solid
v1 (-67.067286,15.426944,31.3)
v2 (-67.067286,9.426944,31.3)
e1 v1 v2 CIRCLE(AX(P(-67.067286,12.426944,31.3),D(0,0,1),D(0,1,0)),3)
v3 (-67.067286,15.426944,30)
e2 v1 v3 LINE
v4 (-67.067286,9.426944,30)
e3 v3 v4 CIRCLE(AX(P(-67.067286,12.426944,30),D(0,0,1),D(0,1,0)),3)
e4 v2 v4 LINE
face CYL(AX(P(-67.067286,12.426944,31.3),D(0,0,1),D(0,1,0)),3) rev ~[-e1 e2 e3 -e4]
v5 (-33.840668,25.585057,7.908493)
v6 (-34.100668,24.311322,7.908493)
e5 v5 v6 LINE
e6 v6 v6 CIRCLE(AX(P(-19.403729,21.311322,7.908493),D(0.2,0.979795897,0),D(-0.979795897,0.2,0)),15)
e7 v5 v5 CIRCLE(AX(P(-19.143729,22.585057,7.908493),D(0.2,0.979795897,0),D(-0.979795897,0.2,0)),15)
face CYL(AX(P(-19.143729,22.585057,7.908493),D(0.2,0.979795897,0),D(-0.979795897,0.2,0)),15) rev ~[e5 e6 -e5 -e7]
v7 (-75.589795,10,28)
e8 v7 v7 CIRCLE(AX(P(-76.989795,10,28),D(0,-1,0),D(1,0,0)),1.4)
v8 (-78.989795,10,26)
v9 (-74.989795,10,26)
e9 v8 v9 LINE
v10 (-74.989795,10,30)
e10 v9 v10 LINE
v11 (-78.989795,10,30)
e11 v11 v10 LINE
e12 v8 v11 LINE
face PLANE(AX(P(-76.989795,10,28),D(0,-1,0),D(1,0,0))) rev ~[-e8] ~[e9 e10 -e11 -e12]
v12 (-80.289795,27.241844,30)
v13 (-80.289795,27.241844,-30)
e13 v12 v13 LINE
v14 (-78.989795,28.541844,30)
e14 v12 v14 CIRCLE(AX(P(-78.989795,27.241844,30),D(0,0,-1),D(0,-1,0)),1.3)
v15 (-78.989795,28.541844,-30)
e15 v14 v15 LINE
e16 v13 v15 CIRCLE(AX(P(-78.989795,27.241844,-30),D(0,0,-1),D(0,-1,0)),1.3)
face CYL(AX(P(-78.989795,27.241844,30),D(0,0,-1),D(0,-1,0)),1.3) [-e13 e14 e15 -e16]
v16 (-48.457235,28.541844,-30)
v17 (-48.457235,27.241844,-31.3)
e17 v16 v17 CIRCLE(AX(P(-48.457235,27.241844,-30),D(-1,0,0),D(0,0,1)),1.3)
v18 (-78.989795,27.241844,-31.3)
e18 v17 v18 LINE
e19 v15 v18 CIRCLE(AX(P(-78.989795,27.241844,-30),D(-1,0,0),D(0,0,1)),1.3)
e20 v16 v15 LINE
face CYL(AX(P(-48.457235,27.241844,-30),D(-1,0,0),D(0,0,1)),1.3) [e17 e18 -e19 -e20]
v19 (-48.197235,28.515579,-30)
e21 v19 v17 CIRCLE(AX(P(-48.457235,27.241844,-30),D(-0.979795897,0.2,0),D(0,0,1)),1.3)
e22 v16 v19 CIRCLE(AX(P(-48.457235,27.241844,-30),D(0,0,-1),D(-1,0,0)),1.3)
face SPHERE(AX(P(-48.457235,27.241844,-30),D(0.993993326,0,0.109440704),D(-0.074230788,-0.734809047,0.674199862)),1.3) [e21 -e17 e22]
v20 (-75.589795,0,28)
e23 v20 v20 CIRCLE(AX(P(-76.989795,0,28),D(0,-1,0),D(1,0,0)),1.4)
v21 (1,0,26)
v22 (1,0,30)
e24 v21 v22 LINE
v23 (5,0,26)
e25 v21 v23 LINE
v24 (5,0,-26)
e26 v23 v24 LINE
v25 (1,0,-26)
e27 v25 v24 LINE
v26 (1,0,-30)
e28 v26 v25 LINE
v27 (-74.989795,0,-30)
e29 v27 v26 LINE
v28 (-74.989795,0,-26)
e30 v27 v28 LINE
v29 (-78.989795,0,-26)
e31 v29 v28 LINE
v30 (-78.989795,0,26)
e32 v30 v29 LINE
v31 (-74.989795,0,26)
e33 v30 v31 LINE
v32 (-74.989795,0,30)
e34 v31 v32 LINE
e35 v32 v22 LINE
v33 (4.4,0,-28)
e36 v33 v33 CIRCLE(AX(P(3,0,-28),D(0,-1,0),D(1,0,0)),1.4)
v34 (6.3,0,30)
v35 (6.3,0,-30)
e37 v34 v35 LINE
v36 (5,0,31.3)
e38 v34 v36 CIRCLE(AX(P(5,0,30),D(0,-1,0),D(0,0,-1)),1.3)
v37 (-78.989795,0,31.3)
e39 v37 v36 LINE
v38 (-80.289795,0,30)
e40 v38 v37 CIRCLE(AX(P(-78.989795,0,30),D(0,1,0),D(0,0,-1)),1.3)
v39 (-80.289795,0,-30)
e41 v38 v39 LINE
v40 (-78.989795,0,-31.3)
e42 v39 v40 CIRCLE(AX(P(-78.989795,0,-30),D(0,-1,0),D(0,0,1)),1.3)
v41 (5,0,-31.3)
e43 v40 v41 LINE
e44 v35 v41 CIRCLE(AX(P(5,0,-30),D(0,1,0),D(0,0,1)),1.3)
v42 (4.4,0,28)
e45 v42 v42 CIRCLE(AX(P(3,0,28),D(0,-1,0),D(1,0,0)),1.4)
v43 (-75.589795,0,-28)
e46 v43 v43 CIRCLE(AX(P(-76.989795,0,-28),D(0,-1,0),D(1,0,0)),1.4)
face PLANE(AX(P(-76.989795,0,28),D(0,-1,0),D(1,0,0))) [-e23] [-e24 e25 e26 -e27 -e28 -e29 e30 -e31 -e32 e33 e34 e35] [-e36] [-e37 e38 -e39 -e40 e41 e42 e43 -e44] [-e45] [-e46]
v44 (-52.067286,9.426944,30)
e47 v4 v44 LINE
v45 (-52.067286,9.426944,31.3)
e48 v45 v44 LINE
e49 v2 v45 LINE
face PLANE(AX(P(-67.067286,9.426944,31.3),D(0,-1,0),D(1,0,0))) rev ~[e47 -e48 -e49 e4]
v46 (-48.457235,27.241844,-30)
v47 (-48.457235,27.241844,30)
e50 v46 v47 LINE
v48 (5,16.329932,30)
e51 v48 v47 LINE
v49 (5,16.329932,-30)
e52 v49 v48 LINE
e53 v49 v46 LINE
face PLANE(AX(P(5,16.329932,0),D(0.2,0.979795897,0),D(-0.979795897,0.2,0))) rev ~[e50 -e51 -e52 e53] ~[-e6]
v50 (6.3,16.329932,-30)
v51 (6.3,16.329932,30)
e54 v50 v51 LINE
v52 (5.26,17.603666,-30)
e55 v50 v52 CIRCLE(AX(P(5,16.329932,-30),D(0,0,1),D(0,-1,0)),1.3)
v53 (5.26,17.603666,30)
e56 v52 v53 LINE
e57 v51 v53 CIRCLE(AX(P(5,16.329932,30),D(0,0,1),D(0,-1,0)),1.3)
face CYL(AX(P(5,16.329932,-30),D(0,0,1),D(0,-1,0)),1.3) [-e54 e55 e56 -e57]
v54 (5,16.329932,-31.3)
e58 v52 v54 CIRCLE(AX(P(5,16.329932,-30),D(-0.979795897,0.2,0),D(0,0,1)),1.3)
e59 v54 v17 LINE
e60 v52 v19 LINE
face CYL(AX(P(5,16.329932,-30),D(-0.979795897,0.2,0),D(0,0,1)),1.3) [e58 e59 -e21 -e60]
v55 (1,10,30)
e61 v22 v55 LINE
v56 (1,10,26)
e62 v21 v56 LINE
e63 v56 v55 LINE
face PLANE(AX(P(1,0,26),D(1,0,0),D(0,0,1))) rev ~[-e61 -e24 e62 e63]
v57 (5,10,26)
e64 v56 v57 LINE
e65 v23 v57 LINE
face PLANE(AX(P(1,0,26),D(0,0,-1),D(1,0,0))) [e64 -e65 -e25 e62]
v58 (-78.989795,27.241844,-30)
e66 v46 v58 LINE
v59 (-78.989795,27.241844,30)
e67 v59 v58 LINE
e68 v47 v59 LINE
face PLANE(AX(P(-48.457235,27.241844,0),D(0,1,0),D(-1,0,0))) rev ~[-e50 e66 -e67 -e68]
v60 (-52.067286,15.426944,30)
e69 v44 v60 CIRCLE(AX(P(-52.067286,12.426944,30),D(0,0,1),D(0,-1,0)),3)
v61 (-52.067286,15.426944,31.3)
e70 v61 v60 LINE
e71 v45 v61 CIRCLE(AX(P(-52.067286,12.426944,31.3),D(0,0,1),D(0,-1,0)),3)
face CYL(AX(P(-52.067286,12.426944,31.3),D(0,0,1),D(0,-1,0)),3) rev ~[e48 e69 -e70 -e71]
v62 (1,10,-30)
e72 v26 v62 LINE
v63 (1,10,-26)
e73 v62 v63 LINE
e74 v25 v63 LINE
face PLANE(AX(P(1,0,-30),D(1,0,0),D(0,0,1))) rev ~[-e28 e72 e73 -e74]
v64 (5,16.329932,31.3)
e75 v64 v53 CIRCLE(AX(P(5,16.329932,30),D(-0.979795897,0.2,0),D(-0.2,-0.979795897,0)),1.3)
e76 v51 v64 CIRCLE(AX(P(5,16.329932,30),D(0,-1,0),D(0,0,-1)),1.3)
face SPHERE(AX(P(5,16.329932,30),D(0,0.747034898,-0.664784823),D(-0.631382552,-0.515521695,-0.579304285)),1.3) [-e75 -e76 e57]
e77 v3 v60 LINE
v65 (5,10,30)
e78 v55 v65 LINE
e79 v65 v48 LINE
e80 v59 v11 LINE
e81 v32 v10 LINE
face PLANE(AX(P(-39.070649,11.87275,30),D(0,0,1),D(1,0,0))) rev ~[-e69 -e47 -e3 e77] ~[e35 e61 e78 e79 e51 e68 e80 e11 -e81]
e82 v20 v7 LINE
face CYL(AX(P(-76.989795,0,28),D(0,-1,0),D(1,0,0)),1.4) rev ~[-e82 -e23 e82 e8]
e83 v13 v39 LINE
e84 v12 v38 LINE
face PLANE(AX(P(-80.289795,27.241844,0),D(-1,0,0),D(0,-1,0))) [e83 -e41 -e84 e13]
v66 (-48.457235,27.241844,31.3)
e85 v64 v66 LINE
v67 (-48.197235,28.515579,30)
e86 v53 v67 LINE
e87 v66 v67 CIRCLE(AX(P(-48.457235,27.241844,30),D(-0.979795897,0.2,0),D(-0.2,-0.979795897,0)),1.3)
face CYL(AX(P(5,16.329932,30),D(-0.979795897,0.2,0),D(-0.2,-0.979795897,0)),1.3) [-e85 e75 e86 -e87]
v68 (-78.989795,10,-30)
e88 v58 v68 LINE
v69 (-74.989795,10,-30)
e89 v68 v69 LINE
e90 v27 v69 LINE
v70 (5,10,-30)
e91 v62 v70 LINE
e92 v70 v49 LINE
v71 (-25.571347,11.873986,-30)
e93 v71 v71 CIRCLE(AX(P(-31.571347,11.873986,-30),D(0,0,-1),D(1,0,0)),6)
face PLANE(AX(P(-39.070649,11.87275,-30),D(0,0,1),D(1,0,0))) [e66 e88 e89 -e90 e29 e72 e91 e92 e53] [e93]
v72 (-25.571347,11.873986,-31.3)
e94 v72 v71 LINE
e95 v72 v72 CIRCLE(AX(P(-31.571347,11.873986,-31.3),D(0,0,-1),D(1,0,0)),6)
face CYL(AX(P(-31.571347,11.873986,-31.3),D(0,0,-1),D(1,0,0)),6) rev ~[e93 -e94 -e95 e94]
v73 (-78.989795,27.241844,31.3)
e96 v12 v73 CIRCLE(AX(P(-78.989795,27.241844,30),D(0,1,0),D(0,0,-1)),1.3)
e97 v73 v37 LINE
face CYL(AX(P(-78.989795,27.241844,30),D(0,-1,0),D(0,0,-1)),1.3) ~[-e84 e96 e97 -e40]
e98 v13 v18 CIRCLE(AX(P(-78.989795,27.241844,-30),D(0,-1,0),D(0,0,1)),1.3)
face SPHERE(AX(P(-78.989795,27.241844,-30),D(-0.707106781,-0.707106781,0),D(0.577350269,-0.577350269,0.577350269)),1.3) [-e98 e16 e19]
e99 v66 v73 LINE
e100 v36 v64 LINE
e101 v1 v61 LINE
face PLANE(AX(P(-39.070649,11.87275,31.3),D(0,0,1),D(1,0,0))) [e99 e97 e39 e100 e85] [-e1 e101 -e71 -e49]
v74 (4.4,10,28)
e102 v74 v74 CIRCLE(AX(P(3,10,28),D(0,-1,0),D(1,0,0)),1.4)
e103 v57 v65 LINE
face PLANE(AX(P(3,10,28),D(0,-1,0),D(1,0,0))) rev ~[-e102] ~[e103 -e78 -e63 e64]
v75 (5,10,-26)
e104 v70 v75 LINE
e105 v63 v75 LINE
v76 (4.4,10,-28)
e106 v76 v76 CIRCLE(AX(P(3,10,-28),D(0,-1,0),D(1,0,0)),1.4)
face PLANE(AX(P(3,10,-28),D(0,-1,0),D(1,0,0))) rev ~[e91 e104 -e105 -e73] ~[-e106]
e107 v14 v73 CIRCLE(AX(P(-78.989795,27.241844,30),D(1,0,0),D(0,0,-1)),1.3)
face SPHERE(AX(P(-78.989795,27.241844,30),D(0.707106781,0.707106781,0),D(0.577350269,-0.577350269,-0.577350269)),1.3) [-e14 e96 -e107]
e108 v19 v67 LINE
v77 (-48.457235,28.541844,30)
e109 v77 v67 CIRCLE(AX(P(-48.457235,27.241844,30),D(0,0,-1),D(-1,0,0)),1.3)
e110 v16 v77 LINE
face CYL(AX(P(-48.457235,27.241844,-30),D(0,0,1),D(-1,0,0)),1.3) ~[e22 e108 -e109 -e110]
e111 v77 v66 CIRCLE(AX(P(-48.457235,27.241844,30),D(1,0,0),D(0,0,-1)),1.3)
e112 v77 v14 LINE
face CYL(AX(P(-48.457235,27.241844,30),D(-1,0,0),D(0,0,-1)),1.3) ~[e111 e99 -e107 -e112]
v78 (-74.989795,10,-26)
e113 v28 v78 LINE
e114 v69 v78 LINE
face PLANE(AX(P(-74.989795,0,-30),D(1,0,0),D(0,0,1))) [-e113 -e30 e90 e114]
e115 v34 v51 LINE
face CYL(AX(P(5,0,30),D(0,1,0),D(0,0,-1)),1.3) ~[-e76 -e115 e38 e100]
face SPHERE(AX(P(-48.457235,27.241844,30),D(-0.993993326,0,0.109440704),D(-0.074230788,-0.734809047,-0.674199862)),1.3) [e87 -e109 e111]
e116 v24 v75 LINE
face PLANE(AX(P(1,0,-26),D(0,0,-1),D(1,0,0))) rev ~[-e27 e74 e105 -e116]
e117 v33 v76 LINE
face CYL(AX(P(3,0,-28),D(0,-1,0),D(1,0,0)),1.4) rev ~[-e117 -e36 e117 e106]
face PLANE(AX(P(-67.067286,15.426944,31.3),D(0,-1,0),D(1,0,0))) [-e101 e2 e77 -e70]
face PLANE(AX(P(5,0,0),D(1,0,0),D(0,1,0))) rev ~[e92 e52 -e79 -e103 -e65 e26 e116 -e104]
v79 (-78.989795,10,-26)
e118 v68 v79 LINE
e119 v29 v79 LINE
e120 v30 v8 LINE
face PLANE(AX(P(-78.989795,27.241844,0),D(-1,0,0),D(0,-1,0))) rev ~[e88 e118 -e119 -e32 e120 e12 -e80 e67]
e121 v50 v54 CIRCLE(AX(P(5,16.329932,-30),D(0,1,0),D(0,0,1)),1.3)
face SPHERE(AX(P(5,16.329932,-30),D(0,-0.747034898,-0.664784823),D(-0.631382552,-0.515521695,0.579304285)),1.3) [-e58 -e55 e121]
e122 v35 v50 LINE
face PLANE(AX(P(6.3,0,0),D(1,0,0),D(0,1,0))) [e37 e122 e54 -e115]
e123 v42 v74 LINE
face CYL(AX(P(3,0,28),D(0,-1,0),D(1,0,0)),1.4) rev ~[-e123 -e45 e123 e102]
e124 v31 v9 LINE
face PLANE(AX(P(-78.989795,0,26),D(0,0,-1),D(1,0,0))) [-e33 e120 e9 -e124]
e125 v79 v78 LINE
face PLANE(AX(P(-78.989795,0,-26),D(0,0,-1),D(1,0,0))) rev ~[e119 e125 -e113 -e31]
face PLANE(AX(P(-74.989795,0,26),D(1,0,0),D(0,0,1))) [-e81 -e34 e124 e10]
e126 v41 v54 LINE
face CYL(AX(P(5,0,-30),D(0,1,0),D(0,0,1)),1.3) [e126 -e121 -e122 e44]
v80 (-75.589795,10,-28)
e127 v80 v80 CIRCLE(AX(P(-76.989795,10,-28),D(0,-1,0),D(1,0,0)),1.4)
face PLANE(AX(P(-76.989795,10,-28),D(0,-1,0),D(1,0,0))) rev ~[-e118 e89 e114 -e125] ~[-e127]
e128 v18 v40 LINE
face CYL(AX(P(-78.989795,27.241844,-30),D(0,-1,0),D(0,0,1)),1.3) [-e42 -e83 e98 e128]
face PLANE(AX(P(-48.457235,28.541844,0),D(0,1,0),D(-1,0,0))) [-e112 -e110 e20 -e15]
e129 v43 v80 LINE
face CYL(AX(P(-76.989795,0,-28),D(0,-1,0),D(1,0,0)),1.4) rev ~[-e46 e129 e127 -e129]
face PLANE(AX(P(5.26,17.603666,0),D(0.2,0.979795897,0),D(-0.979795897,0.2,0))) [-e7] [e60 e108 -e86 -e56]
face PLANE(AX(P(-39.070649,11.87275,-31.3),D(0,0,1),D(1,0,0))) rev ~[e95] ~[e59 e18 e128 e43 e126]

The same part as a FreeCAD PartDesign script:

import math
import FreeCAD as App
import Part
import Sketcher

V = App.Vector
Q = App.Units.Quantity


def faces_at(feature, points):
    """Names of the faces that lie closest to the given points."""
    faces = feature.Shape.Faces
    near = lambda p: min(range(len(faces)), key=lambda i: faces[i].distToShape(Part.Vertex(*p))[0])
    return sorted({f"Face{near(p) + 1}" for p in points})


def add_polygon(sketch, points):
    """Adds a closed chain of lines whose ends are joined by coincident constraints."""
    first, n = sketch.GeometryCount, len(points)
    for a, b in zip(points, points[1:] + points[:1]):
        sketch.addGeometry(Part.LineSegment(App.Vector(*a, 0), App.Vector(*b, 0)), False)
    for i in range(n):
        sketch.addConstraint(Sketcher.Constraint("Coincident", first + i, 2, first + (i + 1) % n, 1))

doc = App.newDocument("Part")
params = doc.addObject("Spreadsheet::Sheet", "Params")
for row, (alias, value) in enumerate([
    ("pad1_length", "60 mm"),
    ("thickness_wall", "1.3 mm"),
    ("sketch2_diameter", "30 mm"),
    ("pocket1_length", "5 mm"),
    ("sketch3_diameter", "2.8 mm"),
    ("sketch3_width", "4 mm"),
    ("pad2_length", "10 mm"),
    ("sketch4_radius", "3 mm"),
    ("sketch4_width", "15 mm"),
    ("pocket2_length", "5 mm"),
    ("sketch5_diameter", "12 mm"),
    ("pocket3_length", "5 mm"),
], start=1):
    params.set(f"A{row}", alias)
    params.set(f"B{row}", "=" + value)
    params.setAlias(f"B{row}", alias)

body = doc.addObject("PartDesign::Body", "Body")

# Sketch on XY plane
sketch1 = doc.addObject("Sketcher::SketchObject", "Sketch")
body.addObject(sketch1)
sketch1.AttachmentSupport = (doc.XY_Plane, [""])
sketch1.MapMode = "FlatFace"
add_polygon(sketch1, [(5, 0), (5, 16.329932), (-48.457235, 27.241844), (-78.989795, 27.241844), (-78.989795, 0)])  # lines 0-4
sketch1.addConstraint(Sketcher.Constraint("Vertical", 0))
sketch1.addConstraint(Sketcher.Constraint("Horizontal", 2))
sketch1.addConstraint(Sketcher.Constraint("Vertical", 3))
sketch1.addConstraint(Sketcher.Constraint("Horizontal", 4))
sketch1.addConstraint(Sketcher.Constraint("PointOnObject", 3, 2, -1))
sketch1.addConstraint(Sketcher.Constraint("DistanceX", -1, 1, 0, 2, Q("5 mm")))
sketch1.addConstraint(Sketcher.Constraint("DistanceX", 2, 2, 2, 1, Q("30.53256 mm")))
sketch1.addConstraint(Sketcher.Constraint("DistanceY", 0, 1, 0, 2, Q("16.329932 mm")))
sketch1.addConstraint(Sketcher.Constraint("DistanceX", 4, 1, 4, 2, Q("83.989795 mm")))
sketch1.addConstraint(Sketcher.Constraint("DistanceY", 3, 2, 3, 1, Q("27.241844 mm")))
pad1 = doc.addObject("PartDesign::Pad", "Pad")
body.addObject(pad1)
pad1.Profile = sketch1
pad1.setExpression("Length", "Params.pad1_length")
pad1.Midplane = True
doc.recompute()

thickness = doc.addObject("PartDesign::Thickness", "Thickness")
body.addObject(thickness)
thickness.Base = (pad1, faces_at(pad1, [(-36.995, 0, 0)]))
thickness.setExpression("Value", "Params.thickness_wall")
thickness.Reversed = False
thickness.Join = "Arc"

# Sketch on an angled plane
sketch2 = doc.addObject("Sketcher::SketchObject", "Sketch001")
body.addObject(sketch2)
sketch2.Placement = App.Placement(V(3.66, 17.930265, 0), App.Rotation(V(-0.979795897, 0.2, 0), V(0, 0, 1), V(0.2, 0.979795897, 0), "ZXY"))
sketch2.addGeometry(Part.Circle(V(23.273959, 7.908493, 0), V(0, 0, 1), 15), False)
sketch2.addConstraint(Sketcher.Constraint("Diameter", 0, Q("30 mm")))
sketch2.addConstraint(Sketcher.Constraint("DistanceX", -1, 1, 0, 3, Q("23.273959 mm")))
sketch2.addConstraint(Sketcher.Constraint("DistanceY", -1, 1, 0, 3, Q("7.908493 mm")))
sketch2.setExpression("Constraints[0]", "Params.sketch2_diameter")
pocket1 = doc.addObject("PartDesign::Pocket", "Pocket")
body.addObject(pocket1)
pocket1.Profile = sketch2
pocket1.setExpression("Length", "Params.pocket1_length")

# Sketch on XZ plane
sketch3 = doc.addObject("Sketcher::SketchObject", "Sketch002")
body.addObject(sketch3)
sketch3.AttachmentSupport = (doc.XZ_Plane, [""])
sketch3.MapMode = "FlatFace"
add_polygon(sketch3, [(-78.989795, 30), (-78.989795, 26), (-74.989795, 26), (-74.989795, 30)])  # lines 0-3
sketch3.addGeometry(Part.Circle(V(-76.989795, 28, 0), V(0, 0, 1), 1.4), False)  # 4
add_polygon(sketch3, [(-78.989795, -26), (-78.989795, -30), (-74.989795, -30), (-74.989795, -26)])  # lines 5-8
sketch3.addGeometry(Part.Circle(V(-76.989795, -28, 0), V(0, 0, 1), 1.4), False)  # 9
add_polygon(sketch3, [(1, -26), (1, -30), (5, -30), (5, -26)])  # lines 10-13
sketch3.addGeometry(Part.Circle(V(3, -28, 0), V(0, 0, 1), 1.4), False)  # 14
add_polygon(sketch3, [(1, 30), (1, 26), (5, 26), (5, 30)])  # lines 15-18
sketch3.addGeometry(Part.Circle(V(3, 28, 0), V(0, 0, 1), 1.4), False)  # 19
sketch3.addConstraint(Sketcher.Constraint("Vertical", 0))
sketch3.addConstraint(Sketcher.Constraint("Horizontal", 1))
sketch3.addConstraint(Sketcher.Constraint("Vertical", 2))
sketch3.addConstraint(Sketcher.Constraint("Horizontal", 3))
sketch3.addConstraint(Sketcher.Constraint("Vertical", 5))
sketch3.addConstraint(Sketcher.Constraint("Horizontal", 6))
sketch3.addConstraint(Sketcher.Constraint("Vertical", 7))
sketch3.addConstraint(Sketcher.Constraint("Horizontal", 8))
sketch3.addConstraint(Sketcher.Constraint("Vertical", 10))
sketch3.addConstraint(Sketcher.Constraint("Horizontal", 11))
sketch3.addConstraint(Sketcher.Constraint("Vertical", 12))
sketch3.addConstraint(Sketcher.Constraint("Horizontal", 13))
sketch3.addConstraint(Sketcher.Constraint("Vertical", 15))
sketch3.addConstraint(Sketcher.Constraint("Horizontal", 16))
sketch3.addConstraint(Sketcher.Constraint("Vertical", 17))
sketch3.addConstraint(Sketcher.Constraint("Horizontal", 18))
sketch3.addConstraint(Sketcher.Constraint("Equal", 4, 9))
sketch3.addConstraint(Sketcher.Constraint("Equal", 9, 14))
sketch3.addConstraint(Sketcher.Constraint("Equal", 14, 19))
sketch3.addConstraint(Sketcher.Constraint("Symmetric", 4, 3, 9, 3, -1))
sketch3.addConstraint(Sketcher.Constraint("Symmetric", 14, 3, 19, 3, -1))
sketch3.addConstraint(Sketcher.Constraint("Symmetric", 3, 2, 5, 2, -1))
sketch3.addConstraint(Sketcher.Constraint("Symmetric", 1, 2, 7, 2, -1))
sketch3.addConstraint(Sketcher.Constraint("Symmetric", 13, 2, 15, 2, -1))
sketch3.addConstraint(Sketcher.Constraint("Symmetric", 11, 2, 17, 2, -1))
sketch3.addConstraint(Sketcher.Constraint("Horizontal", 9, 3, 14, 3))
sketch3.addConstraint(Sketcher.Constraint("Horizontal", 6, 2, 10, 2))
sketch3.addConstraint(Sketcher.Constraint("Horizontal", 8, 2, 12, 2))
sketch3.addConstraint(Sketcher.Constraint("Equal", 8, 11))
sketch3.addConstraint(Sketcher.Constraint("Equal", 18, 0))
sketch3.addConstraint(Sketcher.Constraint("Diameter", 4, Q("2.8 mm")))
sketch3.addConstraint(Sketcher.Constraint("DistanceX", 1, 1, 1, 2, Q("4 mm")))
sketch3.addConstraint(Sketcher.Constraint("DistanceY", -1, 1, 4, 3, Q("28 mm")))
sketch3.addConstraint(Sketcher.Constraint("DistanceX", -1, 1, 14, 3, Q("3 mm")))
sketch3.addConstraint(Sketcher.Constraint("DistanceY", -1, 1, 0, 2, Q("26 mm")))
sketch3.addConstraint(Sketcher.Constraint("DistanceX", -1, 1, 10, 2, Q("1 mm")))
sketch3.addConstraint(Sketcher.Constraint("DistanceX", 0, 2, 4, 3, Q("2 mm")))
sketch3.addConstraint(Sketcher.Constraint("DistanceX", 4, 3, -1, 1, Q("76.989795 mm")))
sketch3.setExpression("Constraints[46]", "Params.sketch3_diameter")
sketch3.setExpression("Constraints[47]", "Params.sketch3_width")
pad2 = doc.addObject("PartDesign::Pad", "Pad001")
body.addObject(pad2)
pad2.Profile = sketch3
pad2.setExpression("Length", "Params.pad2_length")
pad2.Reversed = True

# Sketch on XY plane
sketch4 = doc.addObject("Sketcher::SketchObject", "Sketch003")
body.addObject(sketch4)
sketch4.AttachmentSupport = (doc.XY_Plane, [""])
sketch4.MapMode = "FlatFace"
sketch4.AttachmentOffset = App.Placement(V(0, 0, 31.3), App.Rotation())
sketch4.addGeometry(Part.ArcOfCircle(Part.Circle(V(-67.067286, 12.426944, 0), V(0, 0, 1), 3), math.radians(90), math.radians(270)), False)
sketch4.addGeometry(Part.LineSegment(V(-67.067286, 9.426944, 0), V(-52.067286, 9.426944, 0)), False)
sketch4.addGeometry(Part.ArcOfCircle(Part.Circle(V(-52.067286, 12.426944, 0), V(0, 0, 1), 3), math.radians(-90), math.radians(90)), False)
sketch4.addGeometry(Part.LineSegment(V(-52.067286, 15.426944, 0), V(-67.067286, 15.426944, 0)), False)
sketch4.addConstraint(Sketcher.Constraint("Tangent", 0, 2, 1, 1))
sketch4.addConstraint(Sketcher.Constraint("Tangent", 1, 2, 2, 1))
sketch4.addConstraint(Sketcher.Constraint("Tangent", 2, 2, 3, 1))
sketch4.addConstraint(Sketcher.Constraint("Tangent", 3, 2, 0, 1))
sketch4.addConstraint(Sketcher.Constraint("Horizontal", 1))
sketch4.addConstraint(Sketcher.Constraint("Horizontal", 3))
sketch4.addConstraint(Sketcher.Constraint("Radius", 0, Q("3 mm")))
sketch4.addConstraint(Sketcher.Constraint("DistanceX", 1, 1, 1, 2, Q("15 mm")))
sketch4.addConstraint(Sketcher.Constraint("DistanceX", 0, 3, -1, 1, Q("67.067286 mm")))
sketch4.addConstraint(Sketcher.Constraint("DistanceY", -1, 1, 0, 3, Q("12.426944 mm")))
sketch4.setExpression("Constraints[6]", "Params.sketch4_radius")
sketch4.setExpression("Constraints[7]", "Params.sketch4_width")
pocket2 = doc.addObject("PartDesign::Pocket", "Pocket001")
body.addObject(pocket2)
pocket2.Profile = sketch4
pocket2.setExpression("Length", "Params.pocket2_length")

# Sketch on XY plane
sketch5 = doc.addObject("Sketcher::SketchObject", "Sketch004")
body.addObject(sketch5)
sketch5.AttachmentSupport = (doc.XY_Plane, [""])
sketch5.MapMode = "FlatFace"
sketch5.AttachmentOffset = App.Placement(V(0, 0, -31.3), App.Rotation())
sketch5.addGeometry(Part.Circle(V(-31.571347, 11.873986, 0), V(0, 0, 1), 6), False)
sketch5.addConstraint(Sketcher.Constraint("Diameter", 0, Q("12 mm")))
sketch5.addConstraint(Sketcher.Constraint("DistanceX", 0, 3, -1, 1, Q("31.571347 mm")))
sketch5.addConstraint(Sketcher.Constraint("DistanceY", -1, 1, 0, 3, Q("11.873986 mm")))
sketch5.setExpression("Constraints[0]", "Params.sketch5_diameter")
pocket3 = doc.addObject("PartDesign::Pocket", "Pocket002")
body.addObject(pocket3)
pocket3.Profile = sketch5
pocket3.setExpression("Length", "Params.pocket3_length")
pocket3.Reversed = True

doc.recompute()
